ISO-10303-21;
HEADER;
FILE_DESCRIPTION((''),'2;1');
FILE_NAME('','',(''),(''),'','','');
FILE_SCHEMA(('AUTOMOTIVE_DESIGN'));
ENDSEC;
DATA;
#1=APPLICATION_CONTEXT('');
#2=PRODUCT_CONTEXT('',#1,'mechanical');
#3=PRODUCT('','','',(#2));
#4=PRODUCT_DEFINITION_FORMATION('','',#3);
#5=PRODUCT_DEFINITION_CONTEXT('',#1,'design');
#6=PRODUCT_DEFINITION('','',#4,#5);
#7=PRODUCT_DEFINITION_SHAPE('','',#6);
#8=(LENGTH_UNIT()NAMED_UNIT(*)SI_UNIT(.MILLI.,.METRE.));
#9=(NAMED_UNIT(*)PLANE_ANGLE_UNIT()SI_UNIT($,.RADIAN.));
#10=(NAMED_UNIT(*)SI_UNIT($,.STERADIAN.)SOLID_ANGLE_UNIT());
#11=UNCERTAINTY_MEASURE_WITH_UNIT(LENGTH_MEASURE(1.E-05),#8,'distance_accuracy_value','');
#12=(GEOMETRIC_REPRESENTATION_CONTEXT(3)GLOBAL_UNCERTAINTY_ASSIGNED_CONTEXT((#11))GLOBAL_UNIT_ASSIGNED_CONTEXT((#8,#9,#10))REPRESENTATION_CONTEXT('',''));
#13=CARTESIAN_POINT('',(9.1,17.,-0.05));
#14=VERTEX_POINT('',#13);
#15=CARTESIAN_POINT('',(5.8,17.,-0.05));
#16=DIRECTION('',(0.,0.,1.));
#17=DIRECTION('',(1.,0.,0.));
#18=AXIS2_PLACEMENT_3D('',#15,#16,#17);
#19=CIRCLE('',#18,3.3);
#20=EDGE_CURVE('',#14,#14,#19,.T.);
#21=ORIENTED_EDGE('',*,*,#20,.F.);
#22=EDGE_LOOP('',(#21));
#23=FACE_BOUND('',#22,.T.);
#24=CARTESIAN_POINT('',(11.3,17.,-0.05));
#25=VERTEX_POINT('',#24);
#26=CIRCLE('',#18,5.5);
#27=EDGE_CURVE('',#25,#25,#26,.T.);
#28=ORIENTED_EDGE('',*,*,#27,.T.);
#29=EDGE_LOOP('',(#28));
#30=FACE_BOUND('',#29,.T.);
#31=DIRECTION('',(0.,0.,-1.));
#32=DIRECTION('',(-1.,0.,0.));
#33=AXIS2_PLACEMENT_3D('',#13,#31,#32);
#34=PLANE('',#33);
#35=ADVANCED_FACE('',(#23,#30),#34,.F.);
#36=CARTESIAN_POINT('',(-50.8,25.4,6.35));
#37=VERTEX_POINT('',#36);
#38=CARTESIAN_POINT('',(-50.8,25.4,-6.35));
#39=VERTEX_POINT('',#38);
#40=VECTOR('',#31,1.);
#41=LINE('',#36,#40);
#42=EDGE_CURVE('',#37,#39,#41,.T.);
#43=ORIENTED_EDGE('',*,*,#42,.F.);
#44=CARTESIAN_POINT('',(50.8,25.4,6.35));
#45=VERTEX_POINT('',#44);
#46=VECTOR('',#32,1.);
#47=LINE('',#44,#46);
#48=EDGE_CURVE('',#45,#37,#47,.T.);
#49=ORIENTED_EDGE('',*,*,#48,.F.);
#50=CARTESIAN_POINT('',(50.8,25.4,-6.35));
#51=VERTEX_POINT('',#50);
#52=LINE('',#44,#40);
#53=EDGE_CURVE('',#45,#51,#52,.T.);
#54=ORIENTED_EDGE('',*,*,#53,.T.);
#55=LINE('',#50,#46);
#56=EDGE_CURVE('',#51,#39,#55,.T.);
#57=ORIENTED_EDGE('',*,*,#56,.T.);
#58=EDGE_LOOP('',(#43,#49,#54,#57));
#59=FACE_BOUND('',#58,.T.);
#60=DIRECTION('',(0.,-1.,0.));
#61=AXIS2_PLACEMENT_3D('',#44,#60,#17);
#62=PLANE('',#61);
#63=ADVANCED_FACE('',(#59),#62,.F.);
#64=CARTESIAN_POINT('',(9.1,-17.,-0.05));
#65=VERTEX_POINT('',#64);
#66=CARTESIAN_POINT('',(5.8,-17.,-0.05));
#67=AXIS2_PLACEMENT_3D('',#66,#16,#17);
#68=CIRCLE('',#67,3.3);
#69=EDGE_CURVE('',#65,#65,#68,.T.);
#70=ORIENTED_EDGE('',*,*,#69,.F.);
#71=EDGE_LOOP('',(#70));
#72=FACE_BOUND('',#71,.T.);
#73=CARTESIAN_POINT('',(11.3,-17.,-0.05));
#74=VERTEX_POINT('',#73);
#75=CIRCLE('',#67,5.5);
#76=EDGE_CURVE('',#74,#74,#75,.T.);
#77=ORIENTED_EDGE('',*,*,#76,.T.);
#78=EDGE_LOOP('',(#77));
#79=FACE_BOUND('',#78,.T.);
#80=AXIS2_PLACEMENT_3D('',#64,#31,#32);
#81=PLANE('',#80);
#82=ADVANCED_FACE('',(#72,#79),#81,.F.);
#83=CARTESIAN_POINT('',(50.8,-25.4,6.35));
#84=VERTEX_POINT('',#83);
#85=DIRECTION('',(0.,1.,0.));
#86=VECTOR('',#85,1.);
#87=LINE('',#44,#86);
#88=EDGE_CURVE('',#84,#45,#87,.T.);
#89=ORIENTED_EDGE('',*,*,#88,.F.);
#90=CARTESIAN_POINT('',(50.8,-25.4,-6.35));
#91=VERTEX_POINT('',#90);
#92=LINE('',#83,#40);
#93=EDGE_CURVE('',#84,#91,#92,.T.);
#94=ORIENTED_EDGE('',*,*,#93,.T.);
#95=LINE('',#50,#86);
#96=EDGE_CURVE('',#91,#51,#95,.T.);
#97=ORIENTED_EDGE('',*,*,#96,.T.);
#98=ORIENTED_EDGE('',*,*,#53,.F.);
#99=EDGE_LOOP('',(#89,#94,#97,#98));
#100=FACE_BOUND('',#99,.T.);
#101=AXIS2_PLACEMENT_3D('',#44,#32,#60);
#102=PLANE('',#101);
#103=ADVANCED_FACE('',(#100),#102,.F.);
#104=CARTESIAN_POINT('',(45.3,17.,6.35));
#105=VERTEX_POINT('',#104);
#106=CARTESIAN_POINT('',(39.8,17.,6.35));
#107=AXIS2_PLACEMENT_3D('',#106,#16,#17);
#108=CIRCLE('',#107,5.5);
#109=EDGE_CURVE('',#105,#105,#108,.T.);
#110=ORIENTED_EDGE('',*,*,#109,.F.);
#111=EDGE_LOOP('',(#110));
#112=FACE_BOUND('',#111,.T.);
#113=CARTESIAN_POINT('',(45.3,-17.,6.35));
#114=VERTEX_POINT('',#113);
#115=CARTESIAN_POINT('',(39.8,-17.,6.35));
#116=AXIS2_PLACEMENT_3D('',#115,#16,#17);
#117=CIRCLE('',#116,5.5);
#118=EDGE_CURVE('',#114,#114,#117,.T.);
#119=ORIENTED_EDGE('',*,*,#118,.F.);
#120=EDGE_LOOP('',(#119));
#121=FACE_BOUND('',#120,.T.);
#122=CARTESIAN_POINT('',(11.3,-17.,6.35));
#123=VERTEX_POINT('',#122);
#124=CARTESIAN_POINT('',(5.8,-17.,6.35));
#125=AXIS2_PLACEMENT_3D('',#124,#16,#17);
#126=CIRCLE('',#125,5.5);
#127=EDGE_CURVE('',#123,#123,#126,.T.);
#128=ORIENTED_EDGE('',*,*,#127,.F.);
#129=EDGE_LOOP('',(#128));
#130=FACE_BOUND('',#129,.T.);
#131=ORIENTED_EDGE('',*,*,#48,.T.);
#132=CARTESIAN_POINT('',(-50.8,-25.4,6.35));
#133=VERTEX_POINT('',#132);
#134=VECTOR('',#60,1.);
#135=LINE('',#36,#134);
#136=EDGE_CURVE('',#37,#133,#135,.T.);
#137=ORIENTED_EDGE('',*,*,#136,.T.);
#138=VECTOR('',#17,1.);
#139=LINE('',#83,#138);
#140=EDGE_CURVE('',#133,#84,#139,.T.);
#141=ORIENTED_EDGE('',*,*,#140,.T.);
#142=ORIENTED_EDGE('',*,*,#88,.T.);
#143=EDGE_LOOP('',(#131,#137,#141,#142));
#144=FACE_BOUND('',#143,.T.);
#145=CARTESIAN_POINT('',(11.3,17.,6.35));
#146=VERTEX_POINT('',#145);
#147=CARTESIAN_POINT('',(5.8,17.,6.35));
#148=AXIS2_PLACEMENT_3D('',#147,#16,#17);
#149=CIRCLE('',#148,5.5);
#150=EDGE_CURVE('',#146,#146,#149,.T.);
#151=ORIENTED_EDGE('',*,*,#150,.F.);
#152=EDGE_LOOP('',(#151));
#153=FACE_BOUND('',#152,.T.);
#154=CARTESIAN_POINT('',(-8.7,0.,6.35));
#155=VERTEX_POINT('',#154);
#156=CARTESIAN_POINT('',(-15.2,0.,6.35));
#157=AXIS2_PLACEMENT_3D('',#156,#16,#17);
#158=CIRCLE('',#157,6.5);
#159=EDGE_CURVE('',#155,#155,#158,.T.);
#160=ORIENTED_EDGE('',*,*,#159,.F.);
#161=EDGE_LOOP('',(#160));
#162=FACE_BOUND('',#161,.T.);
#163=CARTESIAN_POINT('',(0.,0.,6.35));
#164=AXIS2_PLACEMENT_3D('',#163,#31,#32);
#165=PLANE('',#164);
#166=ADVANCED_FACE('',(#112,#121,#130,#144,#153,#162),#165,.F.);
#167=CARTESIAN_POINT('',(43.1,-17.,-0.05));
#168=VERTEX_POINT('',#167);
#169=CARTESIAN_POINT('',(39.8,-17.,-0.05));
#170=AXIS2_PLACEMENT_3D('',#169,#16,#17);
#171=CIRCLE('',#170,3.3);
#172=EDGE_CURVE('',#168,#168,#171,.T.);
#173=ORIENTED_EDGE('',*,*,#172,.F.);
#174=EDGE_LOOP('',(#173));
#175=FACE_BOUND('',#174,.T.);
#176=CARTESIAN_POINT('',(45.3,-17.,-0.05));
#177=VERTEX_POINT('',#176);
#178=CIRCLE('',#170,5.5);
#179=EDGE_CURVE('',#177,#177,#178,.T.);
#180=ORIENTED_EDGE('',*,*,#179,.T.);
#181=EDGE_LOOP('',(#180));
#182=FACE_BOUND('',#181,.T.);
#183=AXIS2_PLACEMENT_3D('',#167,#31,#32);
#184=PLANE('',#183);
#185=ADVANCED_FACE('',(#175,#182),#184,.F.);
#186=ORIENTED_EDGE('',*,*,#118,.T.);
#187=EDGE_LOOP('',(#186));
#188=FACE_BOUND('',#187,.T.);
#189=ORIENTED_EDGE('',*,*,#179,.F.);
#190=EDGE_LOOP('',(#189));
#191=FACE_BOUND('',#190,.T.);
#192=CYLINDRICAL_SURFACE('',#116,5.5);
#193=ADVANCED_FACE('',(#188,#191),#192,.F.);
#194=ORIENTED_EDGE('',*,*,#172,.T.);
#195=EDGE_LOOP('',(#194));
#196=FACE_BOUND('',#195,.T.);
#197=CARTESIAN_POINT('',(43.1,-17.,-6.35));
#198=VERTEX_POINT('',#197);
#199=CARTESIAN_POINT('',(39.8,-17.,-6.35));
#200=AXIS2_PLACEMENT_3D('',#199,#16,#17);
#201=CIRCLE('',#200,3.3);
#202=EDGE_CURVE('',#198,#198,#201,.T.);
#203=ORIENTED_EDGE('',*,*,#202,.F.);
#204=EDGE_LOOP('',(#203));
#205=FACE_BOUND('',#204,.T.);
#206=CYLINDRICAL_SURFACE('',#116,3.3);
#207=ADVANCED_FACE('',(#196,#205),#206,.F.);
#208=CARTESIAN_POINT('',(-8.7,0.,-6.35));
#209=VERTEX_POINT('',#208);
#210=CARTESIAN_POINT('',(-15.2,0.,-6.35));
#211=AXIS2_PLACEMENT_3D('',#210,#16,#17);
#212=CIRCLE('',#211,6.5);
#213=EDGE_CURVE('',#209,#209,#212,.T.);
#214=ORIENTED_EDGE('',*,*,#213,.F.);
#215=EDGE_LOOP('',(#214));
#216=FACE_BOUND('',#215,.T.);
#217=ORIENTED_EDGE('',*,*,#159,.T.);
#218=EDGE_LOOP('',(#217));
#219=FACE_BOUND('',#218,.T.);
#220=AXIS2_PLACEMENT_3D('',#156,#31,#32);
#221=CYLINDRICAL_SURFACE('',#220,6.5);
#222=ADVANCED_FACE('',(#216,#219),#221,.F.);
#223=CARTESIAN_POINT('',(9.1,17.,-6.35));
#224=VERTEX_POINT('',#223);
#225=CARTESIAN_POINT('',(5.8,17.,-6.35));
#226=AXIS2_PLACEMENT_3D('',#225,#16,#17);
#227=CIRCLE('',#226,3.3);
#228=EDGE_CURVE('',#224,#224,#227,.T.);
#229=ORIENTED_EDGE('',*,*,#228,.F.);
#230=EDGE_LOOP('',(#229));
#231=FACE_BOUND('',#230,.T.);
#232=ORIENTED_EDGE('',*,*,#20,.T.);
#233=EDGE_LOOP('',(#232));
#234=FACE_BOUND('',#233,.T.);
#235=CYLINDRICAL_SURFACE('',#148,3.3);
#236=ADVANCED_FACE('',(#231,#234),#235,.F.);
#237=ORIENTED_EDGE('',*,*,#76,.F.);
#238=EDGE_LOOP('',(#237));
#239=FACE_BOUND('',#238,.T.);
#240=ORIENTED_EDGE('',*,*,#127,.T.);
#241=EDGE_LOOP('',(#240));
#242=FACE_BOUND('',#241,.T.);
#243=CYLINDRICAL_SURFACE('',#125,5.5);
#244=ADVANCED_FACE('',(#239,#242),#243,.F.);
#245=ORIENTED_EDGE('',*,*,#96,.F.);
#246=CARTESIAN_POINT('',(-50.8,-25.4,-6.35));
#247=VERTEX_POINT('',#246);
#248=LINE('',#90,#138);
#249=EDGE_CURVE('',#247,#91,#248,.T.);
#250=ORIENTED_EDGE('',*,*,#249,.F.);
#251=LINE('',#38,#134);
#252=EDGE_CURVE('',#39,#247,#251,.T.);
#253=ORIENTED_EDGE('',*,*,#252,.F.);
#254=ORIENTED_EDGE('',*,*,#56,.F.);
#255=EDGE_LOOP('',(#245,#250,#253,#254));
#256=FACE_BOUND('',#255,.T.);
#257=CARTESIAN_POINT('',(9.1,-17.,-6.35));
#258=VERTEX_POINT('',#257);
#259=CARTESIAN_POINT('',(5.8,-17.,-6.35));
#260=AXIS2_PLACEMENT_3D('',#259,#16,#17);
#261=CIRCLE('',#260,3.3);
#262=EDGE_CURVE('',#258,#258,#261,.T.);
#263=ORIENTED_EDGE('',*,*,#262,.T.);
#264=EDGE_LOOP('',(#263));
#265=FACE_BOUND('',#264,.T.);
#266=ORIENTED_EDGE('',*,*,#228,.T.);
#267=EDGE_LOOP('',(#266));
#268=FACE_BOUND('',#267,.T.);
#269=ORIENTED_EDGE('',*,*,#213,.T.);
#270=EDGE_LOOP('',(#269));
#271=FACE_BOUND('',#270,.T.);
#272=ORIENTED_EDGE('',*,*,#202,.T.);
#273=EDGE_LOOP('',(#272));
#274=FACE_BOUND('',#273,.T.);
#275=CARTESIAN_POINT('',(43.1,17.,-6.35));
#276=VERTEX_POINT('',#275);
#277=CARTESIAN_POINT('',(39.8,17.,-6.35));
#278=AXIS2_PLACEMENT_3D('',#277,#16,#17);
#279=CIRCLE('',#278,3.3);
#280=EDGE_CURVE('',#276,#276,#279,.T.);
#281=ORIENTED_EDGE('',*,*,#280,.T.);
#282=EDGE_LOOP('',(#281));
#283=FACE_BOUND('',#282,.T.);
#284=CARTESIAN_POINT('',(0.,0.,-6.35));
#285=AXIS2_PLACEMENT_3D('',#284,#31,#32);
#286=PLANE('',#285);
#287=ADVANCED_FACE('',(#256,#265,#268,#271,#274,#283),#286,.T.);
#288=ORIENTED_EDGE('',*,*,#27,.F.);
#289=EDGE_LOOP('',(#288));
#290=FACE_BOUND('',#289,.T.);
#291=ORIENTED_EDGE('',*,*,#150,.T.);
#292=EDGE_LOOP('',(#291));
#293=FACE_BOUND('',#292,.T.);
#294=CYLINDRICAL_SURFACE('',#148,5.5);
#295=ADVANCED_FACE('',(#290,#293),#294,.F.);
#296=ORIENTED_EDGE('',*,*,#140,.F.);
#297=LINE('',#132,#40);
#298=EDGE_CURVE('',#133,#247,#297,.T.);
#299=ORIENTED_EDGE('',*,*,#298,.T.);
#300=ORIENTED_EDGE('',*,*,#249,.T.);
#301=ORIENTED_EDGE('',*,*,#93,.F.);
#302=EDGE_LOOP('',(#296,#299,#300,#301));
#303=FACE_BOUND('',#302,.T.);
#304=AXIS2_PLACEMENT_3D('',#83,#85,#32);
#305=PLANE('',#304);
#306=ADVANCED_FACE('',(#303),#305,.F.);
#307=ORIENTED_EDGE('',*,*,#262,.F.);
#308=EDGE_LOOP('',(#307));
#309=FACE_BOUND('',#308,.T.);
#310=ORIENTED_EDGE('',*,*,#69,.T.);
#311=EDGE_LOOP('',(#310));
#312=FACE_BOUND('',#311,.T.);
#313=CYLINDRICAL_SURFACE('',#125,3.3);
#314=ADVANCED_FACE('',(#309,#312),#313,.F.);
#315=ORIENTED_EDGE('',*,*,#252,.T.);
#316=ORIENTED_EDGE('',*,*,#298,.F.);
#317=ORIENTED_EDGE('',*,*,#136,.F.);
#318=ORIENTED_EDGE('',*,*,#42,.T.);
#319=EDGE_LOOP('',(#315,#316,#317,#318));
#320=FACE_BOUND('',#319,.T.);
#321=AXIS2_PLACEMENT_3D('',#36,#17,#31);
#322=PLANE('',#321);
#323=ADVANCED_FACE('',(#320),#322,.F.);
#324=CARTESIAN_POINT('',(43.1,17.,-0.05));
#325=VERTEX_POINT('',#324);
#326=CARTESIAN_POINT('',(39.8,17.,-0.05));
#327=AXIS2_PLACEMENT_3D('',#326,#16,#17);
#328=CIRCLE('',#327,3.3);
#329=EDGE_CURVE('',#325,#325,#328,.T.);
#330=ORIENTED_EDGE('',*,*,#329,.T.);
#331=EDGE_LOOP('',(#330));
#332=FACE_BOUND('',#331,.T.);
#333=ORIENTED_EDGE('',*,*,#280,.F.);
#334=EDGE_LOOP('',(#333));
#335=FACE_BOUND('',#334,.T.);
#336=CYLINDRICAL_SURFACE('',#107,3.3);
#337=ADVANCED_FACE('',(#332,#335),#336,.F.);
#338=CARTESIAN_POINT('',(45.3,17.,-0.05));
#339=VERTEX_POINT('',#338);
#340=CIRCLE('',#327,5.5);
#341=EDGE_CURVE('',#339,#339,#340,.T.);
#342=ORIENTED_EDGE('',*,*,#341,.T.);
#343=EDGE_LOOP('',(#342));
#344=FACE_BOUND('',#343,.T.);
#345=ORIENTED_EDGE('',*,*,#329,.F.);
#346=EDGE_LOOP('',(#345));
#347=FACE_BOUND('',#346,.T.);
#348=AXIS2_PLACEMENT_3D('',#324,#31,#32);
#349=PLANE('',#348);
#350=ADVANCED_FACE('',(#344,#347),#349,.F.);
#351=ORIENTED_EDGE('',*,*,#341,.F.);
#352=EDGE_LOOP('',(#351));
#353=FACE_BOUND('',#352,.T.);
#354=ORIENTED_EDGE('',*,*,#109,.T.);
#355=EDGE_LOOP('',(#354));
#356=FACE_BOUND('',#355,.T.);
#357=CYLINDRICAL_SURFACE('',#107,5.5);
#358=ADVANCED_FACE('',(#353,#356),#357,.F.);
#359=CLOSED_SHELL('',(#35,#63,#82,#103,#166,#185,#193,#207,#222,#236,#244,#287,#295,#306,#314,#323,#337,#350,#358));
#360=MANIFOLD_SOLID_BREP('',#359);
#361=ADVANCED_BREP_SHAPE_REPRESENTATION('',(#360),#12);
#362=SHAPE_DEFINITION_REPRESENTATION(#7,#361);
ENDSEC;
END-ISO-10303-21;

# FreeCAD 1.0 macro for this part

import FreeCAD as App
import Part
import Sketcher

V = App.Vector
Q = App.Units.Quantity


def add_polygon(sketch, points):
    """Adds a closed chain of lines whose ends are joined by coincident constraints."""
    first, n = sketch.GeometryCount, len(points)
    for a, b in zip(points, points[1:] + points[:1]):
        sketch.addGeometry(Part.LineSegment(App.Vector(*a, 0), App.Vector(*b, 0)), False)
    for i in range(n):
        sketch.addConstraint(Sketcher.Constraint("Coincident", first + i, 2, first + (i + 1) % n, 1))

doc = App.newDocument("Part")
params = doc.addObject("Spreadsheet::Sheet", "Params")
for row, (alias, value) in enumerate([
    ("sketch1_width", "4 in"),
    ("sketch1_height", "2 in"),
    ("pad1_length", "0.5 in"),
    ("hole_diameter", "6.6 mm"),
    ("hole_cbore_diameter", "11 mm"),
    ("hole_cbore_depth", "6.4 mm"),
], start=1):
    params.set(f"A{row}", alias)
    params.set(f"B{row}", "=" + value)
    params.setAlias(f"B{row}", alias)

body = doc.addObject("PartDesign::Body", "Body")

sketch1 = body.newObject("Sketcher::SketchObject", "Sketch")
sketch1.AttachmentSupport = (doc.getObject("XY_Plane"), [""])
sketch1.MapMode = "FlatFace"
add_polygon(sketch1, [(-51, 25), (-51, -25), (51, -25), (51, 25)])
sketch1.addGeometry(Part.Circle(V(-15, 0, 0), V(0, 0, 1), 6), False)
sketch1.addConstraint([
    Sketcher.Constraint("Vertical", 0),
    Sketcher.Constraint("Horizontal", 1),
    Sketcher.Constraint("Vertical", 2),
    Sketcher.Constraint("Horizontal", 3),
    Sketcher.Constraint("Symmetric", 0, 2, 2, 2, -1, 1),
    Sketcher.Constraint("PointOnObject", 4, 3, -1),
    Sketcher.Constraint("DistanceX", 1, 1, 1, 2, Q("4 in")),
    Sketcher.Constraint("DistanceY", 0, 2, 0, 1, Q("2 in")),
    Sketcher.Constraint("Diameter", 4, 13.0),
    Sketcher.Constraint("DistanceX", 4, 3, -1, 1, 15.2),
])
sketch1.setExpression("Constraints[10]", "Params.sketch1_width")
sketch1.setExpression("Constraints[11]", "Params.sketch1_height")
pad1 = body.newObject("PartDesign::Pad", "Pad")
pad1.Profile = sketch1
pad1.setExpression("Length", "Params.pad1_length")
pad1.Midplane = True

sketch2 = body.newObject("Sketcher::SketchObject", "Sketch001")
sketch2.AttachmentSupport = (doc.getObject("XY_Plane"), [""])
sketch2.MapMode = "FlatFace"
sketch2.AttachmentOffset = App.Placement(V(0, 0, 0.25 * 25.4), App.Rotation())
sketch2.addGeometry([
    Part.Circle(V(5.8, 17, 0), V(0, 0, 1), 3.3),
    Part.Circle(V(39.8, 17, 0), V(0, 0, 1), 3.3),
    Part.Circle(V(39.8, -17, 0), V(0, 0, 1), 3.3),
    Part.Circle(V(5.8, -17, 0), V(0, 0, 1), 3.3),
], False)
sketch2.addConstraint([
    Sketcher.Constraint("Equal", 0, 1),
    Sketcher.Constraint("Equal", 1, 2),
    Sketcher.Constraint("Equal", 2, 3),
    Sketcher.Constraint("Symmetric", 1, 3, 2, 3, -1),
    Sketcher.Constraint("Symmetric", 0, 3, 3, 3, -1),
    Sketcher.Constraint("Horizontal", 0, 3, 1, 3),
    Sketcher.Constraint("Diameter", 0, 6.6),
    Sketcher.Constraint("DistanceX", -1, 1, 0, 3, 5.8),
    Sketcher.Constraint("DistanceY", -1, 1, 0, 3, 17.0),
    Sketcher.Constraint("DistanceX", -1, 1, 1, 3, 39.8),
])
doc.recompute()
hole = body.newObject("PartDesign::Hole", "Hole")
hole.Profile = sketch2
hole.ThreadType = "None"
hole.setExpression("Diameter", "Params.hole_diameter")
hole.DepthType = "ThroughAll"
hole.HoleCutType = "Counterbore"
hole.setExpression("HoleCutDiameter", "Params.hole_cbore_diameter")
hole.setExpression("HoleCutDepth", "Params.hole_cbore_depth")

doc.recompute()
